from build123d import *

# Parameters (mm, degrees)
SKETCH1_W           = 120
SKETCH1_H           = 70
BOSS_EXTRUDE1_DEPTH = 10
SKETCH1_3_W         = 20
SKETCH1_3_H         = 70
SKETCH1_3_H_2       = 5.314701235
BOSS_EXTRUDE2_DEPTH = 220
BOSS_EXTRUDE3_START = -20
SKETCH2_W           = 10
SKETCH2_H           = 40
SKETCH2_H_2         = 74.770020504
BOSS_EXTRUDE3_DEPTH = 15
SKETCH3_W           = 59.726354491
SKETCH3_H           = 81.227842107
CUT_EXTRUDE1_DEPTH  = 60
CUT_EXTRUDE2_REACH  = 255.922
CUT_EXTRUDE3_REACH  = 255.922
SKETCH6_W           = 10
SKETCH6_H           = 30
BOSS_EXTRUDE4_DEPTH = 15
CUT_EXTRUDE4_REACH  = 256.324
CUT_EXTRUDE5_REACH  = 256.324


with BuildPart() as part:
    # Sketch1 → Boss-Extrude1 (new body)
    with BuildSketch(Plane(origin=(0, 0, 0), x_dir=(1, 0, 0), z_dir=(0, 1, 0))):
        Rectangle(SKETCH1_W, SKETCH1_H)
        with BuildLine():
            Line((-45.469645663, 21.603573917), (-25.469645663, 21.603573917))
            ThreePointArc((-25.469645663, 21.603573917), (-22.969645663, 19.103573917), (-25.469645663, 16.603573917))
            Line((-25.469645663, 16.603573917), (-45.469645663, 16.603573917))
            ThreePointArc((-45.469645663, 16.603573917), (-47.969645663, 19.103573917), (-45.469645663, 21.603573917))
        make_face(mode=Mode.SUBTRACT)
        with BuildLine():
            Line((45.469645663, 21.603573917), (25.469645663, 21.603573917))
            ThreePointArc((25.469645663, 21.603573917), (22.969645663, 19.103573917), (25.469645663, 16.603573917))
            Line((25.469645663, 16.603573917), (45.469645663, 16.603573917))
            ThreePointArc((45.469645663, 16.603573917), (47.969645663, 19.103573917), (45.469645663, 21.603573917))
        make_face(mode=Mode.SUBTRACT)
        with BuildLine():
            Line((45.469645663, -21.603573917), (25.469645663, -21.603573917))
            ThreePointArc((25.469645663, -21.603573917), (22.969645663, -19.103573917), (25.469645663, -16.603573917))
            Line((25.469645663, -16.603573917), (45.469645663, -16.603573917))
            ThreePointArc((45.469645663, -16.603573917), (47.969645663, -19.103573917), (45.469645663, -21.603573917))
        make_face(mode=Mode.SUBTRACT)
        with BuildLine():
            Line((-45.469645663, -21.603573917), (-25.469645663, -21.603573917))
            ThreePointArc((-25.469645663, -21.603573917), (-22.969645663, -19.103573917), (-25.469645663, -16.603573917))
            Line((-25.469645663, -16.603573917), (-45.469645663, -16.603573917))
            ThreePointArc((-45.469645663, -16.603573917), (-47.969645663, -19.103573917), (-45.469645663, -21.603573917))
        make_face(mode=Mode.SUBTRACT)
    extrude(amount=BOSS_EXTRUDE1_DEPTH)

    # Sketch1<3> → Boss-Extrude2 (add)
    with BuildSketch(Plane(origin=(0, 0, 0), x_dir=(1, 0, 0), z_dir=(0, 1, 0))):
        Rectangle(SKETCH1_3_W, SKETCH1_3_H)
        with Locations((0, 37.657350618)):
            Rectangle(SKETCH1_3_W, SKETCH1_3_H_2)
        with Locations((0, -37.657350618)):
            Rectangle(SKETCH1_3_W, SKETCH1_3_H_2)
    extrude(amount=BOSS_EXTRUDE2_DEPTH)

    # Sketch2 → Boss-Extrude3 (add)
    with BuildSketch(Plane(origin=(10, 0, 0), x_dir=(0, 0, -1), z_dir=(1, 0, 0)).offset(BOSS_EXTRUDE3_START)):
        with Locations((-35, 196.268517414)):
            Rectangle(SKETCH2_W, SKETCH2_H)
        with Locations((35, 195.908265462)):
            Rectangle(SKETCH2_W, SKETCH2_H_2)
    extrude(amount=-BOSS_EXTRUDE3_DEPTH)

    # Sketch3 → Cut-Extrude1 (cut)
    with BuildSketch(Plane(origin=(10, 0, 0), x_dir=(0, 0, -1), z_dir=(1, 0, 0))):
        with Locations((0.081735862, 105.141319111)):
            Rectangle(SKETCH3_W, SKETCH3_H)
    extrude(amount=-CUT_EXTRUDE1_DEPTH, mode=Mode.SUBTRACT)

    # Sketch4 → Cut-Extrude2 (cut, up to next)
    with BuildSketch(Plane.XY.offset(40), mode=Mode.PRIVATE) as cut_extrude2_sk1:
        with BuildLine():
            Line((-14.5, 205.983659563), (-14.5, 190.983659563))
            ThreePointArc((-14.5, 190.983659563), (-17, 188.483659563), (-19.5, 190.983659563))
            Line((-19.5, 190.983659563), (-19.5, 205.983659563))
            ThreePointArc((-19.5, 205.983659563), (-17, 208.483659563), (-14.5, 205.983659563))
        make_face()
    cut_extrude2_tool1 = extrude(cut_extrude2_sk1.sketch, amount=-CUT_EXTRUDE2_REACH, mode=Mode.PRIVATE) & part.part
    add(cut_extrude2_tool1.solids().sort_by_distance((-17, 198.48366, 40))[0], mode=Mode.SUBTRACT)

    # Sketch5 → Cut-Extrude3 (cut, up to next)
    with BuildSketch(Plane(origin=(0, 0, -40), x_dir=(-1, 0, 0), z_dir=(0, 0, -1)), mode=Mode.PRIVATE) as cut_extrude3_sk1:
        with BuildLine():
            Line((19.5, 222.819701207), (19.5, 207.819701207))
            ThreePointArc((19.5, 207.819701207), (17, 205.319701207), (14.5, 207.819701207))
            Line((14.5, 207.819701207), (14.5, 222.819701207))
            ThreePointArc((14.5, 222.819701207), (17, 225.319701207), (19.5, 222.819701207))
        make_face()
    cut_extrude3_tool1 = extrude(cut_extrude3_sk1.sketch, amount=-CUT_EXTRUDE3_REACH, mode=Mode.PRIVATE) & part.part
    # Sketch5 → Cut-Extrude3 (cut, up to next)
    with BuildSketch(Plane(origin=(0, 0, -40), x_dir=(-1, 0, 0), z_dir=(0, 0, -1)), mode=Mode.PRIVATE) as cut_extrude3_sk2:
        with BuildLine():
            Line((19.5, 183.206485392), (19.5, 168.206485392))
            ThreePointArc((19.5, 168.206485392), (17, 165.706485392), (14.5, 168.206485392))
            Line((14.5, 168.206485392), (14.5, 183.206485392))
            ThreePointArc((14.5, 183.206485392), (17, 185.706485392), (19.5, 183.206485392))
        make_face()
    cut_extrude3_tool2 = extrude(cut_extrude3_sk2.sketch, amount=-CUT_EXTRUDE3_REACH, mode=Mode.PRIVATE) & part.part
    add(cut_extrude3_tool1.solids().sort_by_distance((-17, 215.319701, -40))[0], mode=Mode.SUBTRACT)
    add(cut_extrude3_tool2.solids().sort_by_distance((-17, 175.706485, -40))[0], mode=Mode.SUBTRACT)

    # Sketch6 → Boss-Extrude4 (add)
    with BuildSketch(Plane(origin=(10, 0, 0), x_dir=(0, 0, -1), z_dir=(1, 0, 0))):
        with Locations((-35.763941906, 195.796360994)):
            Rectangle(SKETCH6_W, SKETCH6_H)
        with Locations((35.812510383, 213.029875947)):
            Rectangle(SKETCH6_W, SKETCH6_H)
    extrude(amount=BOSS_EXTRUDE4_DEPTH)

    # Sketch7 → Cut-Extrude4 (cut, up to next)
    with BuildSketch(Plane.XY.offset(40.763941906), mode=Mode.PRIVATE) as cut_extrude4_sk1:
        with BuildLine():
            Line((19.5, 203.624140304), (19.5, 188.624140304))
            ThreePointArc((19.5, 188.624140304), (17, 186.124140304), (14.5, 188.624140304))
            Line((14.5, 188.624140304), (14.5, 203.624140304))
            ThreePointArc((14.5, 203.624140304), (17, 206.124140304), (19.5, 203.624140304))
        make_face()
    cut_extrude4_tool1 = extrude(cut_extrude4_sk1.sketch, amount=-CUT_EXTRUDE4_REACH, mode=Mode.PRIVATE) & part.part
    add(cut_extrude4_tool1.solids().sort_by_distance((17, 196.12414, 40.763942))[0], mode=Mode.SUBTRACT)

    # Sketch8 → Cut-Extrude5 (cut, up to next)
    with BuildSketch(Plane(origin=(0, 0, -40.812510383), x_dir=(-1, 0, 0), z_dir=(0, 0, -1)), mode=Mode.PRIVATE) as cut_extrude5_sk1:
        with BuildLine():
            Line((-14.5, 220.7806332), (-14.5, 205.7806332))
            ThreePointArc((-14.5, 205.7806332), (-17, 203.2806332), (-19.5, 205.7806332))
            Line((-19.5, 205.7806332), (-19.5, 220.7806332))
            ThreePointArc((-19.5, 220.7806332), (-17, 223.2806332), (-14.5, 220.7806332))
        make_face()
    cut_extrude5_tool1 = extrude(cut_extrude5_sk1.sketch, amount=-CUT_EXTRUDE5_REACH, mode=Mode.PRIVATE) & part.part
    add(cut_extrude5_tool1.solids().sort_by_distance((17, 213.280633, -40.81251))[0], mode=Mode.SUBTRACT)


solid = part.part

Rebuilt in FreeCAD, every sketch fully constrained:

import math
import FreeCAD as App
import Part
import Sketcher
from FreeCAD import Vector


def add_polygon(sketch, points):
    """Adds a closed chain of lines whose ends are joined by coincident constraints."""
    first, n = sketch.GeometryCount, len(points)
    for a, b in zip(points, points[1:] + points[:1]):
        sketch.addGeometry(Part.LineSegment(App.Vector(*a, 0), App.Vector(*b, 0)), False)
    for i in range(n):
        sketch.addConstraint(Sketcher.Constraint("Coincident", first + i, 2, first + (i + 1) % n, 1))

doc = App.newDocument("Part")
body = doc.addObject("PartDesign::Body", "Body")

sketch1 = doc.addObject("Sketcher::SketchObject", "Sketch")
body.addObject(sketch1)
sketch1.AttachmentSupport = (doc.XZ_Plane, [""])
sketch1.MapMode = "FlatFace"
add_polygon(sketch1, [(-60, -35), (-60, 35), (60, 35), (60, -35)])
sketch1.addGeometry(Part.LineSegment(Vector(-25.5, 21.6, 0), Vector(-45.5, 21.6, 0)), False)
sketch1.addGeometry(Part.ArcOfCircle(Part.Circle(Vector(-45.5, 19.1, 0), Vector(0, 0, 1), 2.5), math.radians(90), math.radians(270)), False)
sketch1.addGeometry(Part.LineSegment(Vector(-45.5, 16.6, 0), Vector(-25.5, 16.6, 0)), False)
sketch1.addGeometry(Part.ArcOfCircle(Part.Circle(Vector(-25.5, 19.1, 0), Vector(0, 0, 1), 2.5), math.radians(-90), math.radians(90)), False)
sketch1.addGeometry(Part.ArcOfCircle(Part.Circle(Vector(45.5, 19.1, 0), Vector(0, 0, 1), 2.5), math.radians(-90), math.radians(90)), False)
sketch1.addGeometry(Part.LineSegment(Vector(45.5, 21.6, 0), Vector(25.5, 21.6, 0)), False)
sketch1.addGeometry(Part.ArcOfCircle(Part.Circle(Vector(25.5, 19.1, 0), Vector(0, 0, 1), 2.5), math.radians(90), math.radians(270)), False)
sketch1.addGeometry(Part.LineSegment(Vector(25.5, 16.6, 0), Vector(45.5, 16.6, 0)), False)
sketch1.addGeometry(Part.ArcOfCircle(Part.Circle(Vector(-45.5, -19.1, 0), Vector(0, 0, 1), 2.5), math.radians(90), math.radians(270)), False)
sketch1.addGeometry(Part.LineSegment(Vector(-45.5, -21.6, 0), Vector(-25.5, -21.6, 0)), False)
sketch1.addGeometry(Part.ArcOfCircle(Part.Circle(Vector(-25.5, -19.1, 0), Vector(0, 0, 1), 2.5), math.radians(-90), math.radians(90)), False)
sketch1.addGeometry(Part.LineSegment(Vector(-25.5, -16.6, 0), Vector(-45.5, -16.6, 0)), False)
sketch1.addGeometry(Part.LineSegment(Vector(25.5, -21.6, 0), Vector(45.5, -21.6, 0)), False)
sketch1.addGeometry(Part.ArcOfCircle(Part.Circle(Vector(45.5, -19.1, 0), Vector(0, 0, 1), 2.5), math.radians(-90), math.radians(90)), False)
sketch1.addGeometry(Part.LineSegment(Vector(45.5, -16.6, 0), Vector(25.5, -16.6, 0)), False)
sketch1.addGeometry(Part.ArcOfCircle(Part.Circle(Vector(25.5, -19.1, 0), Vector(0, 0, 1), 2.5), math.radians(90), math.radians(270)), False)
sketch1.addConstraint(Sketcher.Constraint("Tangent", 4, 2, 5, 1))
sketch1.addConstraint(Sketcher.Constraint("Tangent", 5, 2, 6, 1))
sketch1.addConstraint(Sketcher.Constraint("Tangent", 6, 2, 7, 1))
sketch1.addConstraint(Sketcher.Constraint("Tangent", 7, 2, 4, 1))
sketch1.addConstraint(Sketcher.Constraint("Tangent", 8, 2, 9, 1))
sketch1.addConstraint(Sketcher.Constraint("Tangent", 9, 2, 10, 1))
sketch1.addConstraint(Sketcher.Constraint("Tangent", 10, 2, 11, 1))
sketch1.addConstraint(Sketcher.Constraint("Tangent", 11, 2, 8, 1))
sketch1.addConstraint(Sketcher.Constraint("Tangent", 12, 2, 13, 1))
sketch1.addConstraint(Sketcher.Constraint("Tangent", 13, 2, 14, 1))
sketch1.addConstraint(Sketcher.Constraint("Tangent", 14, 2, 15, 1))
sketch1.addConstraint(Sketcher.Constraint("Tangent", 15, 2, 12, 1))
sketch1.addConstraint(Sketcher.Constraint("Tangent", 16, 2, 17, 1))
sketch1.addConstraint(Sketcher.Constraint("Tangent", 17, 2, 18, 1))
sketch1.addConstraint(Sketcher.Constraint("Tangent", 18, 2, 19, 1))
sketch1.addConstraint(Sketcher.Constraint("Tangent", 19, 2, 16, 1))
sketch1.addConstraint(Sketcher.Constraint("Vertical", 0))
sketch1.addConstraint(Sketcher.Constraint("Horizontal", 1))
sketch1.addConstraint(Sketcher.Constraint("Vertical", 2))
sketch1.addConstraint(Sketcher.Constraint("Horizontal", 3))
sketch1.addConstraint(Sketcher.Constraint("Horizontal", 4))
sketch1.addConstraint(Sketcher.Constraint("Horizontal", 6))
sketch1.addConstraint(Sketcher.Constraint("Horizontal", 9))
sketch1.addConstraint(Sketcher.Constraint("Horizontal", 11))
sketch1.addConstraint(Sketcher.Constraint("Horizontal", 13))
sketch1.addConstraint(Sketcher.Constraint("Horizontal", 15))
sketch1.addConstraint(Sketcher.Constraint("Horizontal", 16))
sketch1.addConstraint(Sketcher.Constraint("Horizontal", 18))
sketch1.addConstraint(Sketcher.Constraint("Equal", 7, 8))
sketch1.addConstraint(Sketcher.Constraint("Equal", 10, 12))
sketch1.addConstraint(Sketcher.Constraint("Equal", 14, 17))
sketch1.addConstraint(Sketcher.Constraint("Symmetric", 8, 3, 12, 3, -1, 1))
sketch1.addConstraint(Sketcher.Constraint("Symmetric", 5, 3, 17, 3, -1, 1))
sketch1.addConstraint(Sketcher.Constraint("Symmetric", 0, 2, 2, 2, -1, 1))
sketch1.addConstraint(Sketcher.Constraint("Symmetric", 5, 3, 8, 3, -2))
sketch1.addConstraint(Sketcher.Constraint("Vertical", 7, 3, 14, 3))
sketch1.addConstraint(Sketcher.Constraint("Vertical", 10, 3, 19, 3))
sketch1.addConstraint(Sketcher.Constraint("Equal", 6, 9))
sketch1.addConstraint(Sketcher.Constraint("Radius", 5, 2.5))
sketch1.addConstraint(Sketcher.Constraint("DistanceX", 1, 1, 1, 2, 120.0))
sketch1.addConstraint(Sketcher.Constraint("DistanceX", 4, 2, 4, 1, 20.0))
sketch1.addConstraint(Sketcher.Constraint("DistanceY", 0, 1, 0, 2, 70.0))
sketch1.addConstraint(Sketcher.Constraint("DistanceX", 7, 3, 8, 3, 70.939291))
sketch1.addConstraint(Sketcher.Constraint("DistanceY", -1, 1, 5, 3, 19.103574))
pad1 = doc.addObject("PartDesign::Pad", "Pad")
body.addObject(pad1)
pad1.Profile = sketch1
pad1.Length = 10
pad1.Reversed = True

sketch2 = doc.addObject("Sketcher::SketchObject", "Sketch001")
body.addObject(sketch2)
sketch2.AttachmentSupport = (doc.XZ_Plane, [""])
sketch2.MapMode = "FlatFace"
add_polygon(sketch2, [(10, -40), (-10, -40), (-10, 40), (10, 40)])
sketch2.addConstraint(Sketcher.Constraint("Horizontal", 0))
sketch2.addConstraint(Sketcher.Constraint("Vertical", 1))
sketch2.addConstraint(Sketcher.Constraint("Horizontal", 2))
sketch2.addConstraint(Sketcher.Constraint("Vertical", 3))
sketch2.addConstraint(Sketcher.Constraint("Symmetric", 0, 2, 2, 2, -1, 1))
sketch2.addConstraint(Sketcher.Constraint("DistanceX", 0, 2, 0, 1, 20.0))
sketch2.addConstraint(Sketcher.Constraint("DistanceY", 0, 2, -1, 1, 40.314701))
pad2 = doc.addObject("PartDesign::Pad", "Pad001")
body.addObject(pad2)
pad2.Profile = sketch2
pad2.Length = 220
pad2.Reversed = True

sketch3 = doc.addObject("Sketcher::SketchObject", "Sketch002")
body.addObject(sketch3)
sketch3.AttachmentSupport = (doc.YZ_Plane, [""])
sketch3.MapMode = "FlatFace"
sketch3.AttachmentOffset = App.Placement(Vector(0, 0, -10), App.Rotation())
add_polygon(sketch3, [(216, 40), (176, 40), (176, 30), (216, 30)])
add_polygon(sketch3, [(233, -30), (159, -30), (159, -40), (233, -40)])
sketch3.addConstraint(Sketcher.Constraint("Horizontal", 0))
sketch3.addConstraint(Sketcher.Constraint("Vertical", 1))
sketch3.addConstraint(Sketcher.Constraint("Horizontal", 2))
sketch3.addConstraint(Sketcher.Constraint("Vertical", 3))
sketch3.addConstraint(Sketcher.Constraint("Horizontal", 4))
sketch3.addConstraint(Sketcher.Constraint("Vertical", 5))
sketch3.addConstraint(Sketcher.Constraint("Horizontal", 6))
sketch3.addConstraint(Sketcher.Constraint("Vertical", 7))
sketch3.addConstraint(Sketcher.Constraint("Equal", 3, 5))
sketch3.addConstraint(Sketcher.Constraint("DistanceX", 0, 2, 0, 1, 40.0))
sketch3.addConstraint(Sketcher.Constraint("DistanceY", 1, 2, 1, 1, 10.0))
sketch3.addConstraint(Sketcher.Constraint("DistanceY", -1, 1, 0, 2, 40.0))
sketch3.addConstraint(Sketcher.Constraint("DistanceY", 4, 2, -1, 1, 30.0))
sketch3.addConstraint(Sketcher.Constraint("DistanceX", 4, 2, 4, 1, 74.770021))
sketch3.addConstraint(Sketcher.Constraint("DistanceX", 2, 2, 6, 2, 17.024758))
sketch3.addConstraint(Sketcher.Constraint("DistanceX", -1, 1, 0, 2, 176.268517))
pad3 = doc.addObject("PartDesign::Pad", "Pad002")
body.addObject(pad3)
pad3.Profile = sketch3
pad3.Length = 15
pad3.Reversed = True

sketch4 = doc.addObject("Sketcher::SketchObject", "Sketch003")
body.addObject(sketch4)
sketch4.AttachmentSupport = (doc.YZ_Plane, [""])
sketch4.MapMode = "FlatFace"
sketch4.AttachmentOffset = App.Placement(Vector(0, 0, 10), App.Rotation())
add_polygon(sketch4, [(146, 30), (65, 30), (65, -30), (146, -30)])
sketch4.addConstraint(Sketcher.Constraint("Horizontal", 0))
sketch4.addConstraint(Sketcher.Constraint("Vertical", 1))
sketch4.addConstraint(Sketcher.Constraint("Horizontal", 2))
sketch4.addConstraint(Sketcher.Constraint("Vertical", 3))
sketch4.addConstraint(Sketcher.Constraint("DistanceX", -1, 1, 0, 2, 64.527398))
sketch4.addConstraint(Sketcher.Constraint("DistanceX", 0, 2, 0, 1, 81.227842))
sketch4.addConstraint(Sketcher.Constraint("DistanceY", 1, 2, 1, 1, 59.726354))
sketch4.addConstraint(Sketcher.Constraint("DistanceY", -1, 1, 0, 2, 29.781441))
pocket1 = doc.addObject("PartDesign::Pocket", "Pocket")
body.addObject(pocket1)
pocket1.Profile = sketch4
pocket1.Length = 60

sketch5 = doc.addObject("Sketcher::SketchObject", "Sketch004")
body.addObject(sketch5)
sketch5.AttachmentSupport = (doc.XY_Plane, [""])
sketch5.MapMode = "FlatFace"
sketch5.AttachmentOffset = App.Placement(Vector(0, 0, 40), App.Rotation())
sketch5.addGeometry(Part.LineSegment(Vector(-14.5, 191, 0), Vector(-14.5, 206, 0)), False)
sketch5.addGeometry(Part.ArcOfCircle(Part.Circle(Vector(-17, 206, 0), Vector(0, 0, 1), 2.5), math.radians(0), math.radians(180)), False)
sketch5.addGeometry(Part.LineSegment(Vector(-19.5, 206, 0), Vector(-19.5, 191, 0)), False)
sketch5.addGeometry(Part.ArcOfCircle(Part.Circle(Vector(-17, 191, 0), Vector(0, 0, 1), 2.5), math.radians(180), math.radians(360)), False)
sketch5.addConstraint(Sketcher.Constraint("Tangent", 0, 2, 1, 1))
sketch5.addConstraint(Sketcher.Constraint("Tangent", 1, 2, 2, 1))
sketch5.addConstraint(Sketcher.Constraint("Tangent", 2, 2, 3, 1))
sketch5.addConstraint(Sketcher.Constraint("Tangent", 3, 2, 0, 1))
sketch5.addConstraint(Sketcher.Constraint("Vertical", 0))
sketch5.addConstraint(Sketcher.Constraint("Vertical", 2))
sketch5.addConstraint(Sketcher.Constraint("Radius", 1, 2.5))
sketch5.addConstraint(Sketcher.Constraint("DistanceY", 0, 1, 0, 2, 15.0))
sketch5.addConstraint(Sketcher.Constraint("DistanceX", 1, 3, -1, 1, 17.0))
sketch5.addConstraint(Sketcher.Constraint("DistanceY", -1, 1, 1, 3, 205.98366))
pocket2 = doc.addObject("PartDesign::Pocket", "Pocket001")
body.addObject(pocket2)
pocket2.Profile = sketch5
pocket2.Type = "UpToFirst"

sketch6 = doc.addObject("Sketcher::SketchObject", "Sketch005")
body.addObject(sketch6)
sketch6.AttachmentSupport = (doc.XY_Plane, [""])
sketch6.MapMode = "FlatFace"
sketch6.AttachmentOffset = App.Placement(Vector(0, 0, -40), App.Rotation())
sketch6.addGeometry(Part.LineSegment(Vector(-19.5, 207.8, 0), Vector(-19.5, 222.8, 0)), False)
sketch6.addGeometry(Part.ArcOfCircle(Part.Circle(Vector(-17, 222.8, 0), Vector(0, 0, 1), 2.5), math.radians(0), math.radians(180)), False)
sketch6.addGeometry(Part.LineSegment(Vector(-14.5, 222.8, 0), Vector(-14.5, 207.8, 0)), False)
sketch6.addGeometry(Part.ArcOfCircle(Part.Circle(Vector(-17, 207.8, 0), Vector(0, 0, 1), 2.5), math.radians(180), math.radians(360)), False)
sketch6.addConstraint(Sketcher.Constraint("Tangent", 0, 2, 1, 2))
sketch6.addConstraint(Sketcher.Constraint("Tangent", 1, 1, 2, 1))
sketch6.addConstraint(Sketcher.Constraint("Tangent", 2, 2, 3, 2))
sketch6.addConstraint(Sketcher.Constraint("Tangent", 3, 1, 0, 1))
sketch6.addConstraint(Sketcher.Constraint("Vertical", 0))
sketch6.addConstraint(Sketcher.Constraint("Vertical", 2))
sketch6.addConstraint(Sketcher.Constraint("Radius", 1, 2.5))
sketch6.addConstraint(Sketcher.Constraint("DistanceY", 0, 1, 0, 2, 15.0))
sketch6.addConstraint(Sketcher.Constraint("DistanceX", 1, 3, -1, 1, 17.0))
sketch6.addConstraint(Sketcher.Constraint("DistanceY", -1, 1, 1, 3, 222.819701))
pocket3 = doc.addObject("PartDesign::Pocket", "Pocket002")
body.addObject(pocket3)
pocket3.Profile = sketch6
pocket3.Type = "UpToFirst"
pocket3.Reversed = True

sketch7 = doc.addObject("Sketcher::SketchObject", "Sketch006")
body.addObject(sketch7)
sketch7.AttachmentSupport = (doc.XY_Plane, [""])
sketch7.MapMode = "FlatFace"
sketch7.AttachmentOffset = App.Placement(Vector(0, 0, -40), App.Rotation())
sketch7.addGeometry(Part.LineSegment(Vector(-19.5, 168.2, 0), Vector(-19.5, 183.2, 0)), False)
sketch7.addGeometry(Part.ArcOfCircle(Part.Circle(Vector(-17, 183.2, 0), Vector(0, 0, 1), 2.5), math.radians(0), math.radians(180)), False)
sketch7.addGeometry(Part.LineSegment(Vector(-14.5, 183.2, 0), Vector(-14.5, 168.2, 0)), False)
sketch7.addGeometry(Part.ArcOfCircle(Part.Circle(Vector(-17, 168.2, 0), Vector(0, 0, 1), 2.5), math.radians(180), math.radians(360)), False)
sketch7.addConstraint(Sketcher.Constraint("Tangent", 0, 2, 1, 2))
sketch7.addConstraint(Sketcher.Constraint("Tangent", 1, 1, 2, 1))
sketch7.addConstraint(Sketcher.Constraint("Tangent", 2, 2, 3, 2))
sketch7.addConstraint(Sketcher.Constraint("Tangent", 3, 1, 0, 1))
sketch7.addConstraint(Sketcher.Constraint("Vertical", 0))
sketch7.addConstraint(Sketcher.Constraint("Vertical", 2))
sketch7.addConstraint(Sketcher.Constraint("Radius", 1, 2.5))
sketch7.addConstraint(Sketcher.Constraint("DistanceY", 0, 1, 0, 2, 15.0))
sketch7.addConstraint(Sketcher.Constraint("DistanceX", 1, 3, -1, 1, 17.0))
sketch7.addConstraint(Sketcher.Constraint("DistanceY", -1, 1, 1, 3, 183.206485))
pocket4 = doc.addObject("PartDesign::Pocket", "Pocket003")
body.addObject(pocket4)
pocket4.Profile = sketch7
pocket4.Type = "UpToFirst"
pocket4.Reversed = True

sketch8 = doc.addObject("Sketcher::SketchObject", "Sketch007")
body.addObject(sketch8)
sketch8.AttachmentSupport = (doc.YZ_Plane, [""])
sketch8.MapMode = "FlatFace"
sketch8.AttachmentOffset = App.Placement(Vector(0, 0, 10), App.Rotation())
add_polygon(sketch8, [(211, 41), (181, 41), (181, 31), (211, 31)])
add_polygon(sketch8, [(228, -31), (198, -31), (198, -41), (228, -41)])
sketch8.addConstraint(Sketcher.Constraint("Horizontal", 0))
sketch8.addConstraint(Sketcher.Constraint("Vertical", 1))
sketch8.addConstraint(Sketcher.Constraint("Horizontal", 2))
sketch8.addConstraint(Sketcher.Constraint("Vertical", 3))
sketch8.addConstraint(Sketcher.Constraint("Horizontal", 4))
sketch8.addConstraint(Sketcher.Constraint("Vertical", 5))
sketch8.addConstraint(Sketcher.Constraint("Horizontal", 6))
sketch8.addConstraint(Sketcher.Constraint("Vertical", 7))
sketch8.addConstraint(Sketcher.Constraint("Equal", 2, 4))
sketch8.addConstraint(Sketcher.Constraint("Equal", 3, 5))
sketch8.addConstraint(Sketcher.Constraint("DistanceX", 0, 2, 0, 1, 30.0))
sketch8.addConstraint(Sketcher.Constraint("DistanceY", 1, 2, 1, 1, 10.0))
sketch8.addConstraint(Sketcher.Constraint("DistanceX", -1, 1, 0, 2, 180.796361))
sketch8.addConstraint(Sketcher.Constraint("DistanceY", -1, 1, 0, 2, 40.763942))
sketch8.addConstraint(Sketcher.Constraint("DistanceY", 4, 2, -1, 1, 30.81251))
sketch8.addConstraint(Sketcher.Constraint("DistanceX", -1, 1, 4, 2, 198.029876))
pad4 = doc.addObject("PartDesign::Pad", "Pad003")
body.addObject(pad4)
pad4.Profile = sketch8
pad4.Length = 15

sketch9 = doc.addObject("Sketcher::SketchObject", "Sketch008")
body.addObject(sketch9)
sketch9.AttachmentSupport = (doc.XY_Plane, [""])
sketch9.MapMode = "FlatFace"
sketch9.AttachmentOffset = App.Placement(Vector(0, 0, 40.763942), App.Rotation())
sketch9.addGeometry(Part.LineSegment(Vector(19.5, 188.6, 0), Vector(19.5, 203.6, 0)), False)
sketch9.addGeometry(Part.ArcOfCircle(Part.Circle(Vector(17, 203.6, 0), Vector(0, 0, 1), 2.5), math.radians(0), math.radians(180)), False)
sketch9.addGeometry(Part.LineSegment(Vector(14.5, 203.6, 0), Vector(14.5, 188.6, 0)), False)
sketch9.addGeometry(Part.ArcOfCircle(Part.Circle(Vector(17, 188.6, 0), Vector(0, 0, 1), 2.5), math.radians(180), math.radians(360)), False)
sketch9.addConstraint(Sketcher.Constraint("Tangent", 0, 2, 1, 1))
sketch9.addConstraint(Sketcher.Constraint("Tangent", 1, 2, 2, 1))
sketch9.addConstraint(Sketcher.Constraint("Tangent", 2, 2, 3, 1))
sketch9.addConstraint(Sketcher.Constraint("Tangent", 3, 2, 0, 1))
sketch9.addConstraint(Sketcher.Constraint("Vertical", 0))
sketch9.addConstraint(Sketcher.Constraint("Vertical", 2))
sketch9.addConstraint(Sketcher.Constraint("Radius", 1, 2.5))
sketch9.addConstraint(Sketcher.Constraint("DistanceY", 0, 1, 0, 2, 15.0))
sketch9.addConstraint(Sketcher.Constraint("DistanceX", -1, 1, 1, 3, 17.0))
sketch9.addConstraint(Sketcher.Constraint("DistanceY", -1, 1, 1, 3, 203.62414))
pocket5 = doc.addObject("PartDesign::Pocket", "Pocket004")
body.addObject(pocket5)
pocket5.Profile = sketch9
pocket5.Type = "UpToFirst"

sketch10 = doc.addObject("Sketcher::SketchObject", "Sketch009")
body.addObject(sketch10)
sketch10.AttachmentSupport = (doc.XY_Plane, [""])
sketch10.MapMode = "FlatFace"
sketch10.AttachmentOffset = App.Placement(Vector(0, 0, -40.81251), App.Rotation())
sketch10.addGeometry(Part.LineSegment(Vector(14.5, 205.8, 0), Vector(14.5, 220.8, 0)), False)
sketch10.addGeometry(Part.ArcOfCircle(Part.Circle(Vector(17, 220.8, 0), Vector(0, 0, 1), 2.5), math.radians(0), math.radians(180)), False)
sketch10.addGeometry(Part.LineSegment(Vector(19.5, 220.8, 0), Vector(19.5, 205.8, 0)), False)
sketch10.addGeometry(Part.ArcOfCircle(Part.Circle(Vector(17, 205.8, 0), Vector(0, 0, 1), 2.5), math.radians(180), math.radians(360)), False)
sketch10.addConstraint(Sketcher.Constraint("Tangent", 0, 2, 1, 2))
sketch10.addConstraint(Sketcher.Constraint("Tangent", 1, 1, 2, 1))
sketch10.addConstraint(Sketcher.Constraint("Tangent", 2, 2, 3, 2))
sketch10.addConstraint(Sketcher.Constraint("Tangent", 3, 1, 0, 1))
sketch10.addConstraint(Sketcher.Constraint("Vertical", 0))
sketch10.addConstraint(Sketcher.Constraint("Vertical", 2))
sketch10.addConstraint(Sketcher.Constraint("Radius", 1, 2.5))
sketch10.addConstraint(Sketcher.Constraint("DistanceY", 0, 1, 0, 2, 15.0))
sketch10.addConstraint(Sketcher.Constraint("DistanceX", -1, 1, 1, 3, 17.0))
sketch10.addConstraint(Sketcher.Constraint("DistanceY", -1, 1, 1, 3, 220.780633))
pocket6 = doc.addObject("PartDesign::Pocket", "Pocket005")
body.addObject(pocket6)
pocket6.Profile = sketch10
pocket6.Type = "UpToFirst"
pocket6.Reversed = True

doc.recompute()
